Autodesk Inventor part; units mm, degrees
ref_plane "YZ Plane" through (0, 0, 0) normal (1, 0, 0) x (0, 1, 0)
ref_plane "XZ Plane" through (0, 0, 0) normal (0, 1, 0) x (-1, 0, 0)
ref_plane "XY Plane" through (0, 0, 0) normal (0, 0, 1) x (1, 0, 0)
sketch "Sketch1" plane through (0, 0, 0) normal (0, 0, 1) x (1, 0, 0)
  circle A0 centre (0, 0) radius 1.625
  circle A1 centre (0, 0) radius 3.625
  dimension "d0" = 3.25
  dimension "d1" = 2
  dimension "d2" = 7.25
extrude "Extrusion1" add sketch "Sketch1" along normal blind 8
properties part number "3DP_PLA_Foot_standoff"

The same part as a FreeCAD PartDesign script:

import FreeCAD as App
import Part
import Sketcher

V = App.Vector
Q = App.Units.Quantity

doc = App.newDocument("Part")
body = doc.addObject("PartDesign::Body", "Body")

# Sketch on XY plane
sketch1 = body.newObject("Sketcher::SketchObject", "Sketch")
sketch1.AttachmentSupport = (doc.getObject("XY_Plane"), [""])
sketch1.MapMode = "FlatFace"
sketch1.addGeometry(Part.Circle(V(0, 0, 0), V(0, 0, 1), 3.625), False)
sketch1.addGeometry(Part.Circle(V(0, 0, 0), V(0, 0, 1), 1.625), False)
sketch1.addConstraint(Sketcher.Constraint("Coincident", 0, 3, -1, 1))
sketch1.addConstraint(Sketcher.Constraint("Coincident", 1, 3, -1, 1))
sketch1.addConstraint(Sketcher.Constraint("Diameter", 0, Q("7.25 mm")))
sketch1.addConstraint(Sketcher.Constraint("Diameter", 1, Q("3.25 mm")))
pad1 = body.newObject("PartDesign::Pad", "Pad")
pad1.Profile = sketch1
pad1.Length = 8

doc.recompute()
